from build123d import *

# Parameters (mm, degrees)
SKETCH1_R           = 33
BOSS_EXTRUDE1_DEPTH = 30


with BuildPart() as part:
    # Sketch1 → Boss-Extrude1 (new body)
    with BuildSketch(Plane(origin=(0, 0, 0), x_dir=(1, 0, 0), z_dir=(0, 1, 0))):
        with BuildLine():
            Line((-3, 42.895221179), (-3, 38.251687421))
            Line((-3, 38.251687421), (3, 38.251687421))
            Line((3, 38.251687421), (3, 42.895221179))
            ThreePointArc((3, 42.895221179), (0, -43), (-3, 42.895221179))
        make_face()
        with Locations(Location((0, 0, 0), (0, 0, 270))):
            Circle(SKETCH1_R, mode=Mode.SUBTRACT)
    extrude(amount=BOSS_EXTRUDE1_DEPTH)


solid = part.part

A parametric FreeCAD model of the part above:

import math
import FreeCAD as App
import Part
import Sketcher
from FreeCAD import Vector
Q = App.Units.Quantity

doc = App.newDocument("Part")
params = doc.addObject("Spreadsheet::Sheet", "Params")
for row, (alias, value) in enumerate([
    ("sketch1_diameter", "66 mm"),
    ("sketch1_radius", "43 mm"),
    ("sketch1_width", "6 mm"),
    ("pad1_length", "30 mm"),
], start=1):
    params.set(f"A{row}", alias)
    params.set(f"B{row}", "=" + value)
    params.setAlias(f"B{row}", alias)

body = doc.addObject("PartDesign::Body", "Body")

# Sketch on XZ plane
sketch1 = body.newObject("Sketcher::SketchObject", "Sketch")
sketch1.AttachmentSupport = (doc.getObject("XZ_Plane"), [""])
sketch1.MapMode = "FlatFace"
sketch1.addGeometry(Part.LineSegment(Vector(-3, -38.3, 0), Vector(-3, -42.9, 0)), False)
sketch1.addGeometry(Part.ArcOfCircle(Part.Circle(Vector(0, 0, 0), Vector(0, 0, 1), 43), math.radians(-86), math.radians(266)), False)
sketch1.addGeometry(Part.LineSegment(Vector(3, -42.9, 0), Vector(3, -38.3, 0)), False)
sketch1.addGeometry(Part.LineSegment(Vector(3, -38.3, 0), Vector(-3, -38.3, 0)), False)
sketch1.addGeometry(Part.Circle(Vector(0, 0, 0), Vector(0, 0, 1), 33), False)
sketch1.addConstraint(Sketcher.Constraint("Coincident", 0, 2, 1, 2))
sketch1.addConstraint(Sketcher.Constraint("Coincident", 1, 1, 2, 1))
sketch1.addConstraint(Sketcher.Constraint("Coincident", 2, 2, 3, 1))
sketch1.addConstraint(Sketcher.Constraint("Coincident", 3, 2, 0, 1))
sketch1.addConstraint(Sketcher.Constraint("Vertical", 0))
sketch1.addConstraint(Sketcher.Constraint("Vertical", 2))
sketch1.addConstraint(Sketcher.Constraint("Horizontal", 3))
sketch1.addConstraint(Sketcher.Constraint("Coincident", 1, 3, -1, 1))
sketch1.addConstraint(Sketcher.Constraint("Coincident", 4, 3, -1, 1))
sketch1.addConstraint(Sketcher.Constraint("Horizontal", 0, 2, 1, 1))
sketch1.addConstraint(Sketcher.Constraint("Diameter", 4, Q("66 mm")))
sketch1.addConstraint(Sketcher.Constraint("Radius", 1, Q("43 mm")))
sketch1.addConstraint(Sketcher.Constraint("DistanceX", 3, 2, 3, 1, Q("6 mm")))
sketch1.addConstraint(Sketcher.Constraint("DistanceY", 0, 2, 0, 1, Q("4.643534 mm")))
sketch1.setExpression("Constraints[10]", "Params.sketch1_diameter")
sketch1.setExpression("Constraints[11]", "Params.sketch1_radius")
sketch1.setExpression("Constraints[12]", "Params.sketch1_width")
pad1 = body.newObject("PartDesign::Pad", "Pad")
pad1.Profile = sketch1
pad1.setExpression("Length", "Params.pad1_length")
pad1.Reversed = True

doc.recompute()
